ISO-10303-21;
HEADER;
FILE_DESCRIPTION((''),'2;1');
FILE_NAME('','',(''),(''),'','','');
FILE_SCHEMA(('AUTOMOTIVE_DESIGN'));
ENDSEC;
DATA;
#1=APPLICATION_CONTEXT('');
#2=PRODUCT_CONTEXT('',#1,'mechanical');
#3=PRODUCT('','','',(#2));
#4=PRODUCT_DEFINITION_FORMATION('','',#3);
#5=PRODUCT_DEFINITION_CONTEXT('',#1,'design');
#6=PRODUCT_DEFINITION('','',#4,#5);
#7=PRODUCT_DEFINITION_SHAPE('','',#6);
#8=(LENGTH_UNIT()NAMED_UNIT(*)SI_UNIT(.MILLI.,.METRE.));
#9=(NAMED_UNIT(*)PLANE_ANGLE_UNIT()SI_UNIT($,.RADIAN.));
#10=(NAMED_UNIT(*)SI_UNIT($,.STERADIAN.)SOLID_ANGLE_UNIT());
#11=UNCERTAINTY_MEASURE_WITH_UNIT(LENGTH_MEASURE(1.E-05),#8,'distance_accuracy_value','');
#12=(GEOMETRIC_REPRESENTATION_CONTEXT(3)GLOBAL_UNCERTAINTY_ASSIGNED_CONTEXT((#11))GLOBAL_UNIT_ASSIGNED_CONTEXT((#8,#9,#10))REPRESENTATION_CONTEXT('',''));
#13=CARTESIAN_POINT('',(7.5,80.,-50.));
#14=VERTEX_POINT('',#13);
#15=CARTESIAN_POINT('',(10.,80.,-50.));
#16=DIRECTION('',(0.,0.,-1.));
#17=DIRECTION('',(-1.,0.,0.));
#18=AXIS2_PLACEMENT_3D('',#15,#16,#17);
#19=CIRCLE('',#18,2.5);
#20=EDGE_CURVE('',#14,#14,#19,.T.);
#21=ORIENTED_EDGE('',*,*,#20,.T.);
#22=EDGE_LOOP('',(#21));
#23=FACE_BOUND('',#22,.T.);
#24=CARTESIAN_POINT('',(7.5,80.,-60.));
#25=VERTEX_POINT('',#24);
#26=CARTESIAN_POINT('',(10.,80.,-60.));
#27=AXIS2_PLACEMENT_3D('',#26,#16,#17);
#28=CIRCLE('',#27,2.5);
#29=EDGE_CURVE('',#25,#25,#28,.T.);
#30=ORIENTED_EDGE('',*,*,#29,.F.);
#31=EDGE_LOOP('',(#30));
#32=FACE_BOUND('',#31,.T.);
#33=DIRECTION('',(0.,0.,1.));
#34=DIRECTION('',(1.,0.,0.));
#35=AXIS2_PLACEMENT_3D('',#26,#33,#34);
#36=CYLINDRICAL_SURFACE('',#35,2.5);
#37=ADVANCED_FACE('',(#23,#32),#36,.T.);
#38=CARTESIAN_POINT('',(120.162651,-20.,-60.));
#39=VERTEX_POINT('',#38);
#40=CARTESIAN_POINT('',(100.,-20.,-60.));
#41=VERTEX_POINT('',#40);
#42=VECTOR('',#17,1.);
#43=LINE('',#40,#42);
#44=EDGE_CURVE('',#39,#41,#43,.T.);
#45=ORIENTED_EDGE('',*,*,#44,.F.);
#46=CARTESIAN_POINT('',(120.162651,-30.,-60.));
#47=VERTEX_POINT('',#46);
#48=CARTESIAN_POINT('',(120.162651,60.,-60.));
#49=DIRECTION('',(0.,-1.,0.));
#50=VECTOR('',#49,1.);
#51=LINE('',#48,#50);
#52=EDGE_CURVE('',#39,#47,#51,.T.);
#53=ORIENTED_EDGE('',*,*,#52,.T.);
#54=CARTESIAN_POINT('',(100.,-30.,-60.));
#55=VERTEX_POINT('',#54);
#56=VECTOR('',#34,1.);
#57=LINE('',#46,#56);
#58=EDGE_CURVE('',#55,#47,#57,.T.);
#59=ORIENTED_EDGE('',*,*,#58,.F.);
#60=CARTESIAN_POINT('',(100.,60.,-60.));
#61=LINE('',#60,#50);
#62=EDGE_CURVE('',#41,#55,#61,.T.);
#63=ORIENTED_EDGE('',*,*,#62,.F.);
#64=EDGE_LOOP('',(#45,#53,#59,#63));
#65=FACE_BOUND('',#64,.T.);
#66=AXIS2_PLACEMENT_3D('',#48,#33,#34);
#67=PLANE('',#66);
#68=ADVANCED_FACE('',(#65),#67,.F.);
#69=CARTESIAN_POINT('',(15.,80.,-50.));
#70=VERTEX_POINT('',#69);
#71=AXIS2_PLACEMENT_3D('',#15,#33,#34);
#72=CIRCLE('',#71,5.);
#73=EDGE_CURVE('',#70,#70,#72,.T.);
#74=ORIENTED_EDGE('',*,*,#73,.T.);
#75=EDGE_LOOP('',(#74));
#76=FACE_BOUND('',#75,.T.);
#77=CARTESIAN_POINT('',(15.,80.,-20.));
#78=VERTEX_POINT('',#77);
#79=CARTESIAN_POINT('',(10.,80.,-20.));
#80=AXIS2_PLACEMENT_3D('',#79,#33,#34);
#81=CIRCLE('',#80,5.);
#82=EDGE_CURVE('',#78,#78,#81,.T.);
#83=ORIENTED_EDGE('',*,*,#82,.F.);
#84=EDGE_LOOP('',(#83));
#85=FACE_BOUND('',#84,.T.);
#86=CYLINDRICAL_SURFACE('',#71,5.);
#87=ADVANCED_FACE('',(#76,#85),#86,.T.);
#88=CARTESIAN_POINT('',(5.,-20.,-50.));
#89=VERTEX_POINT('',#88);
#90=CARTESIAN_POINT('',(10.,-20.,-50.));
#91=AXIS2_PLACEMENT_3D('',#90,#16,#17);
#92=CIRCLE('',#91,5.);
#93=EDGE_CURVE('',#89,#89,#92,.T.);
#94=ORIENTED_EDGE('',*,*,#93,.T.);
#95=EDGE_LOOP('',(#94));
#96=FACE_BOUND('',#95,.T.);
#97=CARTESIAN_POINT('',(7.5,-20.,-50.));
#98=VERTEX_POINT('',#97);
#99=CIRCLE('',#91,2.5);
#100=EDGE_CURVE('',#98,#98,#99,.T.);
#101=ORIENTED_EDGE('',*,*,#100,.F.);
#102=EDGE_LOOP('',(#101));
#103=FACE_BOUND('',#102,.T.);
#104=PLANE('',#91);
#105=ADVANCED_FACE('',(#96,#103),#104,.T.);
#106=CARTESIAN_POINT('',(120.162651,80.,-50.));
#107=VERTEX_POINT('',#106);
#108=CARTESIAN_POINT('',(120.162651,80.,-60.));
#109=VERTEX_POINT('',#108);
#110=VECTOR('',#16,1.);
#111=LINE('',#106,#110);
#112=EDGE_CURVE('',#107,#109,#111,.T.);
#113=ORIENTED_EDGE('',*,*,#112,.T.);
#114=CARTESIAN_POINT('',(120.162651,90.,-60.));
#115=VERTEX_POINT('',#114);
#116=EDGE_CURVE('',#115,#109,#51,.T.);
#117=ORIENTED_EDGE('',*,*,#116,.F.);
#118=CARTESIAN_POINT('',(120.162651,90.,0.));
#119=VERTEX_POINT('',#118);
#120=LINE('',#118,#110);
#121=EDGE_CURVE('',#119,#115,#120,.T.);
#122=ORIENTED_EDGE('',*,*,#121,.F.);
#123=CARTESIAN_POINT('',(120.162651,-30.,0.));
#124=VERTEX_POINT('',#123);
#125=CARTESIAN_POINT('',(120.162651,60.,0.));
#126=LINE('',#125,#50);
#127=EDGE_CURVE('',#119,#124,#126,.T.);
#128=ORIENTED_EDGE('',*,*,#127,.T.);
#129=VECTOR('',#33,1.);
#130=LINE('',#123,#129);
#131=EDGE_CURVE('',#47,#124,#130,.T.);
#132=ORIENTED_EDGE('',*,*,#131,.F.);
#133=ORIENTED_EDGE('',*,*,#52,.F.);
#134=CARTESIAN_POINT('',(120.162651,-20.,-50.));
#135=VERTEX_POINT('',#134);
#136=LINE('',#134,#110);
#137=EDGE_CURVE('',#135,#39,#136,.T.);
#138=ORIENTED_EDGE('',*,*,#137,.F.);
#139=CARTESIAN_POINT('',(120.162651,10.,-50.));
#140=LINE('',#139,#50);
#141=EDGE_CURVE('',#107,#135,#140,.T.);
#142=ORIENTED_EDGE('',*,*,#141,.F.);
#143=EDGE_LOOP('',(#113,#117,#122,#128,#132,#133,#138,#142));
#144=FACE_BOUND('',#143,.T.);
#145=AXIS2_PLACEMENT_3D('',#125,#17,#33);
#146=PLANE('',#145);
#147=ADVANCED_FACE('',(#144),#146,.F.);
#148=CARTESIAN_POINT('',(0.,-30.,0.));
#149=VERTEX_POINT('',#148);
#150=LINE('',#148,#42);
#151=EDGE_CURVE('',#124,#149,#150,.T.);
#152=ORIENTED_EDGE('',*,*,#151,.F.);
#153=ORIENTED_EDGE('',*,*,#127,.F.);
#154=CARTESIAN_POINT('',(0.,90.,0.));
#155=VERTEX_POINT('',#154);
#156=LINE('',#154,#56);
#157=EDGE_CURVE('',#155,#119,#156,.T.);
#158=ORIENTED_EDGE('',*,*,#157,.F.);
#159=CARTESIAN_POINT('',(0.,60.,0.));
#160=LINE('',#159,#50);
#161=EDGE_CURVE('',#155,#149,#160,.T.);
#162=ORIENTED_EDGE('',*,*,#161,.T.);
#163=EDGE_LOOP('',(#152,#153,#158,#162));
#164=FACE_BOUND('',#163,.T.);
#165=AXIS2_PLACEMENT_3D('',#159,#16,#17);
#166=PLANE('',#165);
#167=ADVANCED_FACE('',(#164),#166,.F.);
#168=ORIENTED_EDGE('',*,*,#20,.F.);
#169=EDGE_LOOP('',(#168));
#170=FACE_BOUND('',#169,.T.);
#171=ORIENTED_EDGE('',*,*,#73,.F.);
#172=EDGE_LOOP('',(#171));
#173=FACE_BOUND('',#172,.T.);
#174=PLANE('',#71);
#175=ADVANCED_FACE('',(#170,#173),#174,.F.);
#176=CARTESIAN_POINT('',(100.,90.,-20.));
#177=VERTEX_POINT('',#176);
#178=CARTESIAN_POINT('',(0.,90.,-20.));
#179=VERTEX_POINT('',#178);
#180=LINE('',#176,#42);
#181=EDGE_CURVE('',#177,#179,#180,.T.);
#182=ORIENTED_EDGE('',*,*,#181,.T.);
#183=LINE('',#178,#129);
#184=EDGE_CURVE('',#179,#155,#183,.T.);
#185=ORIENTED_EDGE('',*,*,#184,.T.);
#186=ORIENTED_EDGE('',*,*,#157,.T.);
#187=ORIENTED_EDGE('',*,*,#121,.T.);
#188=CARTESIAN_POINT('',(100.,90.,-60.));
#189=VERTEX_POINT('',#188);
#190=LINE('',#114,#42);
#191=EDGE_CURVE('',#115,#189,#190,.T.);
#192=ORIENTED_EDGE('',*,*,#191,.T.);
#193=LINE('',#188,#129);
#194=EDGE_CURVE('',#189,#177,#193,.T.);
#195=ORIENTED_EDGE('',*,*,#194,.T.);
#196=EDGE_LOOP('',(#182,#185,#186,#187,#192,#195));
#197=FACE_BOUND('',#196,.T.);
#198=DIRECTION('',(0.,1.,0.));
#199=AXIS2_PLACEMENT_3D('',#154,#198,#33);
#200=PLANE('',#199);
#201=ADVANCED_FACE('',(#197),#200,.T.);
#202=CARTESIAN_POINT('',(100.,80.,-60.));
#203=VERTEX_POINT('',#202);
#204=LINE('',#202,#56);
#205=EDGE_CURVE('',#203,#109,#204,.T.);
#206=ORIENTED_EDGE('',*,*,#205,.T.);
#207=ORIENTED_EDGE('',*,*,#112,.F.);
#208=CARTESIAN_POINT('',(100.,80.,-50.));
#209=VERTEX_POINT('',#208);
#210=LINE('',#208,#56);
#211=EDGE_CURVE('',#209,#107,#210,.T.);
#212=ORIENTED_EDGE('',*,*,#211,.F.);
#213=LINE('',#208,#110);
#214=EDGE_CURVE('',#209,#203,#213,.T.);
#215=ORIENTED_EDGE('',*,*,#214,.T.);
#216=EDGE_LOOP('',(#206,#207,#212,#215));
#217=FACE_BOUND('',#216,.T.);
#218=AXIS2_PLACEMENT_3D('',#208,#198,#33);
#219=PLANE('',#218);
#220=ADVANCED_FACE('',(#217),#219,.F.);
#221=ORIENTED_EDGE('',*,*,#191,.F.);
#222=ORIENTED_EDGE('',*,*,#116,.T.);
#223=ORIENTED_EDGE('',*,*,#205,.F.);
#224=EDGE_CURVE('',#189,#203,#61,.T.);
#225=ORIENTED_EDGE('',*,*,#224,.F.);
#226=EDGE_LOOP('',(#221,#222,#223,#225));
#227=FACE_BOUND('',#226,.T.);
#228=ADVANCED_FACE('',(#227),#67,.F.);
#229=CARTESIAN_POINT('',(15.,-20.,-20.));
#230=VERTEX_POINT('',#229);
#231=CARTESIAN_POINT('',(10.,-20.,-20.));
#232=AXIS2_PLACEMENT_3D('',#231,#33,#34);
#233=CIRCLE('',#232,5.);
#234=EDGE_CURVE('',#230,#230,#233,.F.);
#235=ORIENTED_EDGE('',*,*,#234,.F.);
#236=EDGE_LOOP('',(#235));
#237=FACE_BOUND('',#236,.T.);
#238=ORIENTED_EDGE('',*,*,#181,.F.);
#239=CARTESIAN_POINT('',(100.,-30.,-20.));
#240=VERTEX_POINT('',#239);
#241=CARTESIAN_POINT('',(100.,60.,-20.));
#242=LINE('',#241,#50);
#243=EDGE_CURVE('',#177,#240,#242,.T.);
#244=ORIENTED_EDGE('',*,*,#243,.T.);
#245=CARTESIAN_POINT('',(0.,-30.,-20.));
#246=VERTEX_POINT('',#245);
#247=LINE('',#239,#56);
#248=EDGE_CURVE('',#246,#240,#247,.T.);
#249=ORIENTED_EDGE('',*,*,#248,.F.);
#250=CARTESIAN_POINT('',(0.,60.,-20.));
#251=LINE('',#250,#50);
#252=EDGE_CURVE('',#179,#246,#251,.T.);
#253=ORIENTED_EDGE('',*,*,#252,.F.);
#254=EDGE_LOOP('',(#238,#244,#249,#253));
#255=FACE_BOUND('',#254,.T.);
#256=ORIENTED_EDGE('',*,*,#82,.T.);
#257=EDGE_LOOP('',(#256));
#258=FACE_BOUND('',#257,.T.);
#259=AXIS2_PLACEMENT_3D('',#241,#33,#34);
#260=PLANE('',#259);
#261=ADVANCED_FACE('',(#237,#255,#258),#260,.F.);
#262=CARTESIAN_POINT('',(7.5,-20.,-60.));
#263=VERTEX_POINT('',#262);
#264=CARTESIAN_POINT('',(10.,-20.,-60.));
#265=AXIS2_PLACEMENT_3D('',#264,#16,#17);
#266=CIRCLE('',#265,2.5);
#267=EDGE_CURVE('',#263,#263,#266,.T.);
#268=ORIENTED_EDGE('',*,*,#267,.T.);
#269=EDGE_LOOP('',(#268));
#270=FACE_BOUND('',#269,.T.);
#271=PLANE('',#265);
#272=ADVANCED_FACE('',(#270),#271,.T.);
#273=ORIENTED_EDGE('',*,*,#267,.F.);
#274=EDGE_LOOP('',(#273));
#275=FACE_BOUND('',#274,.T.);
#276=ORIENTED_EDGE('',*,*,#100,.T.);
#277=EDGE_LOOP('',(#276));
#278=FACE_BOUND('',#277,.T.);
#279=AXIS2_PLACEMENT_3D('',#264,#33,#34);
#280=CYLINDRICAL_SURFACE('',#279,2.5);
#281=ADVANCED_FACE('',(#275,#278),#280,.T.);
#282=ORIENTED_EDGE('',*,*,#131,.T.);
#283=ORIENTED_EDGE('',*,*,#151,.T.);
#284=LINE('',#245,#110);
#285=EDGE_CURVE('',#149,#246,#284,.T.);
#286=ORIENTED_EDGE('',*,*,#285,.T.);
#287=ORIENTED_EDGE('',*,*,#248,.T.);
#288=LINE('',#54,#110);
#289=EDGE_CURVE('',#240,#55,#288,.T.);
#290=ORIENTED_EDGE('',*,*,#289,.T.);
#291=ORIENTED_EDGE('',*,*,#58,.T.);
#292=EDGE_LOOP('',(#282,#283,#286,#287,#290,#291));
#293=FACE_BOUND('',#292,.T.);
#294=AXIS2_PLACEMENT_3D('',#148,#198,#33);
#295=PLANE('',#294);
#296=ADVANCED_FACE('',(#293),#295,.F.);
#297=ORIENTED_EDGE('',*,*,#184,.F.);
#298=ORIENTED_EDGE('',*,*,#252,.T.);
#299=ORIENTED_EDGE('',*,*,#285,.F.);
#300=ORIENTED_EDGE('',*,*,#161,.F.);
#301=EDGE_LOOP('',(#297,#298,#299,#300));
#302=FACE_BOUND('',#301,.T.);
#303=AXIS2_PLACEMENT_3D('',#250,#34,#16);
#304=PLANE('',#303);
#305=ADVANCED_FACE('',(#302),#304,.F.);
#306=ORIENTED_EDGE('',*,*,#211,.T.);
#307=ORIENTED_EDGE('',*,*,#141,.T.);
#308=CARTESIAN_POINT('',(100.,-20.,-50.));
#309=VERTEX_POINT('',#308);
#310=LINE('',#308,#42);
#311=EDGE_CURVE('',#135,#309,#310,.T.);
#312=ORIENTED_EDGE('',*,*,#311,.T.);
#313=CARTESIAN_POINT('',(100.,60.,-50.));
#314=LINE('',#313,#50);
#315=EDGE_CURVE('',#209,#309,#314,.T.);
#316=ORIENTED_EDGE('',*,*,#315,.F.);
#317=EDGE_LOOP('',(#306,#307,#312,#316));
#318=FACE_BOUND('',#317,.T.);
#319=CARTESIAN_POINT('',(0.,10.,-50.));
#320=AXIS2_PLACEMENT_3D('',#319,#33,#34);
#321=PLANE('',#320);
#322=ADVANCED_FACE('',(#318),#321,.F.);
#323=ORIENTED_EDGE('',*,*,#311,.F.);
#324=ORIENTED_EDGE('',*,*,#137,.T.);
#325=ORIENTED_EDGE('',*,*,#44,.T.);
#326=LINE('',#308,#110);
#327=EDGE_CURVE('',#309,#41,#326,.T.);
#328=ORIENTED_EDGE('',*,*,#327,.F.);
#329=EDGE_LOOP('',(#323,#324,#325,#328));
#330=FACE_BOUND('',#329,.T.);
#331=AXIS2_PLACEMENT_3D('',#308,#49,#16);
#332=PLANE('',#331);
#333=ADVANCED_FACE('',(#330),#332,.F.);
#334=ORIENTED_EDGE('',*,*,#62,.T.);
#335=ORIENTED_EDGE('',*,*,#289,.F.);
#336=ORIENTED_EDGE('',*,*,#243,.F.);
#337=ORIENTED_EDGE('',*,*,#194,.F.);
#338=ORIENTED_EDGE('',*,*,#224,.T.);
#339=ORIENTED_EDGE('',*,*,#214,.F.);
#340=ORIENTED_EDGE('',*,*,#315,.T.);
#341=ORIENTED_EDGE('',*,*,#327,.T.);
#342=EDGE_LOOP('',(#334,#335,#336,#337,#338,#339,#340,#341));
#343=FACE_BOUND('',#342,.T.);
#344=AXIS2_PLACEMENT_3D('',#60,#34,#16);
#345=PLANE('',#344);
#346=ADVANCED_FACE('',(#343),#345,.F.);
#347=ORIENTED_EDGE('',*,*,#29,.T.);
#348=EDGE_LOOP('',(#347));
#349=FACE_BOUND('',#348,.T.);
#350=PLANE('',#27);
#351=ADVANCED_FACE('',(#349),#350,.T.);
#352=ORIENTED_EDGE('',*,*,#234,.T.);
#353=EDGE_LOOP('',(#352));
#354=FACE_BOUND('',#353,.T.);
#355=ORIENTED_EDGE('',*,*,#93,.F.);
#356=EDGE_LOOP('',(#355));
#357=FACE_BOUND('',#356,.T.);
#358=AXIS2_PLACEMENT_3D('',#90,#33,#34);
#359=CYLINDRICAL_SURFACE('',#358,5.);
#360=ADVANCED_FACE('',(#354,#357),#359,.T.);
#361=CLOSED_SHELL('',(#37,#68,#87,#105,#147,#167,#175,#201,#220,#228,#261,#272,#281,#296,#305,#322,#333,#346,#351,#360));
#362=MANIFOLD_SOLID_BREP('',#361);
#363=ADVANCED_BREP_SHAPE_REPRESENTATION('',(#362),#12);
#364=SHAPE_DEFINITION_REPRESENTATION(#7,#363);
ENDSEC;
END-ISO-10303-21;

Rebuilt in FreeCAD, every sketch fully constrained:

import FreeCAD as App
import Part
import Sketcher
from FreeCAD import Vector

doc = App.newDocument("Part")
body = doc.addObject("PartDesign::Body", "Body")

# Sketch on XZ plane
sketch1 = body.newObject("Sketcher::SketchObject", "Sketch")
sketch1.AttachmentSupport = (doc.getObject("XZ_Plane"), [""])
sketch1.MapMode = "FlatFace"
sketch1.addGeometry([
    Part.LineSegment(Vector(0, 0, 0), Vector(120, 0, 0)),  # 0
    Part.LineSegment(Vector(120, 0, 0), Vector(120, -60, 0)),  # 1
    Part.LineSegment(Vector(120, -60, 0), Vector(100, -60, 0)),  # 2
    Part.LineSegment(Vector(100, -60, 0), Vector(100, -20, 0)),  # 3
    Part.LineSegment(Vector(100, -20, 0), Vector(0, -20, 0)),  # 4
    Part.LineSegment(Vector(0, -20, 0), Vector(0, 0, 0)),  # 5
], False)
sketch1.addConstraint([
    Sketcher.Constraint("Coincident", 0, 2, 1, 1),
    Sketcher.Constraint("Coincident", 1, 2, 2, 1),
    Sketcher.Constraint("Coincident", 2, 2, 3, 1),
    Sketcher.Constraint("Coincident", 3, 2, 4, 1),
    Sketcher.Constraint("Coincident", 4, 2, 5, 1),
    Sketcher.Constraint("Coincident", 5, 2, 0, 1),
    Sketcher.Constraint("Horizontal", 0),
    Sketcher.Constraint("Vertical", 1),
    Sketcher.Constraint("Horizontal", 2),
    Sketcher.Constraint("Vertical", 3),
    Sketcher.Constraint("Horizontal", 4),
    Sketcher.Constraint("Vertical", 5),
    Sketcher.Constraint("Coincident", 5, 2, -1, 1),
    Sketcher.Constraint("DistanceX", 4, 2, 4, 1, 100.0),
    Sketcher.Constraint("DistanceY", 1, 2, 1, 1, 60.0),
    Sketcher.Constraint("DistanceY", 3, 1, 3, 2, 40.0),
    Sketcher.Constraint("DistanceX", 0, 1, 0, 2, 120.162651),
])
pad1 = body.newObject("PartDesign::Pad", "Pad")
pad1.Profile = sketch1
pad1.Length = 60
pad1.Reversed = True

# Sketch on YZ plane
sketch2 = body.newObject("Sketcher::SketchObject", "Sketch001")
sketch2.AttachmentSupport = (doc.getObject("YZ_Plane"), [""])
sketch2.MapMode = "FlatFace"
sketch2.AttachmentOffset = App.Placement(Vector(0, 0, 120.162651), App.Rotation())
sketch2.addGeometry([
    Part.LineSegment(Vector(50, -50, 0), Vector(10, -50, 0)),
    Part.LineSegment(Vector(10, -50, 0), Vector(10, -60, 0)),
    Part.LineSegment(Vector(10, -60, 0), Vector(50, -60, 0)),
    Part.LineSegment(Vector(50, -60, 0), Vector(50, -50, 0)),
], False)
sketch2.addConstraint([
    Sketcher.Constraint("Coincident", 0, 2, 1, 1),
    Sketcher.Constraint("Coincident", 1, 2, 2, 1),
    Sketcher.Constraint("Coincident", 2, 2, 3, 1),
    Sketcher.Constraint("Coincident", 3, 2, 0, 1),
    Sketcher.Constraint("Horizontal", 0),
    Sketcher.Constraint("Vertical", 1),
    Sketcher.Constraint("Horizontal", 2),
    Sketcher.Constraint("Vertical", 3),
    Sketcher.Constraint("DistanceX", 0, 2, 0, 1, 40.0),
    Sketcher.Constraint("DistanceY", 1, 2, 1, 1, 10.0),
    Sketcher.Constraint("DistanceX", -1, 1, 0, 2, 10.0),
    Sketcher.Constraint("DistanceY", 0, 2, -1, 1, 50.0),
])
pocket1 = body.newObject("PartDesign::Pocket", "Pocket")
pocket1.Profile = sketch2
pocket1.Type = "ThroughAll"

# Sketch on XZ plane
sketch3 = body.newObject("Sketcher::SketchObject", "Sketch002")
sketch3.AttachmentSupport = (doc.getObject("XZ_Plane"), [""])
sketch3.MapMode = "FlatFace"
sketch3.AttachmentOffset = App.Placement(Vector(0, 0, -60), App.Rotation())
sketch3.addGeometry([
    Part.LineSegment(Vector(0, -20, 0), Vector(0, 0, 0)),  # 0
    Part.LineSegment(Vector(0, 0, 0), Vector(120, 0, 0)),  # 1
    Part.LineSegment(Vector(120, 0, 0), Vector(120, -60, 0)),  # 2
    Part.LineSegment(Vector(120, -60, 0), Vector(100, -60, 0)),  # 3
    Part.LineSegment(Vector(100, -60, 0), Vector(100, -20, 0)),  # 4
    Part.LineSegment(Vector(100, -20, 0), Vector(0, -20, 0)),  # 5
], False)
sketch3.addConstraint([
    Sketcher.Constraint("Coincident", 0, 2, 1, 1),
    Sketcher.Constraint("Coincident", 1, 2, 2, 1),
    Sketcher.Constraint("Coincident", 2, 2, 3, 1),
    Sketcher.Constraint("Coincident", 3, 2, 4, 1),
    Sketcher.Constraint("Coincident", 4, 2, 5, 1),
    Sketcher.Constraint("Coincident", 5, 2, 0, 1),
    Sketcher.Constraint("Vertical", 0),
    Sketcher.Constraint("Horizontal", 1),
    Sketcher.Constraint("Vertical", 2),
    Sketcher.Constraint("Horizontal", 3),
    Sketcher.Constraint("Vertical", 4),
    Sketcher.Constraint("Horizontal", 5),
    Sketcher.Constraint("Coincident", 0, 2, -1, 1),
    Sketcher.Constraint("DistanceX", 5, 2, 5, 1, 100.0),
    Sketcher.Constraint("DistanceY", 0, 1, 0, 2, 20.0),
    Sketcher.Constraint("DistanceY", 2, 2, 2, 1, 60.0),
    Sketcher.Constraint("DistanceX", 1, 1, 1, 2, 120.162651),
])
pad2 = body.newObject("PartDesign::Pad", "Pad001")
pad2.Profile = sketch3
pad2.Length = 30
pad2.Reversed = True

# Sketch on XZ plane
sketch4 = body.newObject("Sketcher::SketchObject", "Sketch003")
sketch4.AttachmentSupport = (doc.getObject("XZ_Plane"), [""])
sketch4.MapMode = "FlatFace"
sketch4.addGeometry([
    Part.LineSegment(Vector(0, 0, 0), Vector(0, -20, 0)),  # 0
    Part.LineSegment(Vector(0, -20, 0), Vector(100, -20, 0)),  # 1
    Part.LineSegment(Vector(100, -20, 0), Vector(100, -60, 0)),  # 2
    Part.LineSegment(Vector(100, -60, 0), Vector(120, -60, 0)),  # 3
    Part.LineSegment(Vector(120, -60, 0), Vector(120, 0, 0)),  # 4
    Part.LineSegment(Vector(120, 0, 0), Vector(0, 0, 0)),  # 5
], False)
sketch4.addConstraint([
    Sketcher.Constraint("Coincident", 0, 2, 1, 1),
    Sketcher.Constraint("Coincident", 1, 2, 2, 1),
    Sketcher.Constraint("Coincident", 2, 2, 3, 1),
    Sketcher.Constraint("Coincident", 3, 2, 4, 1),
    Sketcher.Constraint("Coincident", 4, 2, 5, 1),
    Sketcher.Constraint("Coincident", 5, 2, 0, 1),
    Sketcher.Constraint("Vertical", 0),
    Sketcher.Constraint("Horizontal", 1),
    Sketcher.Constraint("Vertical", 2),
    Sketcher.Constraint("Horizontal", 3),
    Sketcher.Constraint("Vertical", 4),
    Sketcher.Constraint("Horizontal", 5),
    Sketcher.Constraint("Coincident", 5, 2, -1, 1),
    Sketcher.Constraint("DistanceX", 1, 1, 1, 2, 100.0),
    Sketcher.Constraint("DistanceY", 0, 2, 0, 1, 20.0),
    Sketcher.Constraint("DistanceY", 2, 2, 2, 1, 40.0),
    Sketcher.Constraint("DistanceX", 3, 1, 3, 2, 20.162651),
])
pad3 = body.newObject("PartDesign::Pad", "Pad002")
pad3.Profile = sketch4
pad3.Length = 30

# Sketch on XY plane
sketch5 = body.newObject("Sketcher::SketchObject", "Sketch004")
sketch5.AttachmentSupport = (doc.getObject("XY_Plane"), [""])
sketch5.MapMode = "FlatFace"
sketch5.AttachmentOffset = App.Placement(Vector(0, 0, -20), App.Rotation())
sketch5.addGeometry([
    Part.Circle(Vector(10, -20, 0), Vector(0, 0, 1), 5),
    Part.Circle(Vector(10, 80, 0), Vector(0, 0, 1), 5),
], False)
sketch5.addConstraint([
    Sketcher.Constraint("Equal", 0, 1),
    Sketcher.Constraint("Vertical", 0, 3, 1, 3),
    Sketcher.Constraint("Diameter", 0, 10.0),
    Sketcher.Constraint("DistanceX", -1, 1, 0, 3, 10.0),
    Sketcher.Constraint("DistanceY", 0, 3, -1, 1, 20.0),
    Sketcher.Constraint("DistanceY", -1, 1, 1, 3, 80.0),
])
pad4 = body.newObject("PartDesign::Pad", "Pad003")
pad4.Profile = sketch5
pad4.Length = 30
pad4.Reversed = True

# Sketch on XY plane
sketch6 = body.newObject("Sketcher::SketchObject", "Sketch005")
sketch6.AttachmentSupport = (doc.getObject("XY_Plane"), [""])
sketch6.MapMode = "FlatFace"
sketch6.AttachmentOffset = App.Placement(Vector(0, 0, -50), App.Rotation())
sketch6.addGeometry([
    Part.Circle(Vector(10, -20, 0), Vector(0, 0, 1), 2.5),
    Part.Circle(Vector(10, 80, 0), Vector(0, 0, 1), 2.5),
], False)
sketch6.addConstraint([
    Sketcher.Constraint("Equal", 0, 1),
    Sketcher.Constraint("Vertical", 0, 3, 1, 3),
    Sketcher.Constraint("Diameter", 0, 5.0),
    Sketcher.Constraint("DistanceX", -1, 1, 0, 3, 10.0),
    Sketcher.Constraint("DistanceY", 0, 3, -1, 1, 20.0),
    Sketcher.Constraint("DistanceY", -1, 1, 1, 3, 80.0),
])
pad5 = body.newObject("PartDesign::Pad", "Pad004")
pad5.Profile = sketch6
pad5.Length = 10
pad5.Reversed = True

# Sketch on XY plane
sketch7 = body.newObject("Sketcher::SketchObject", "Sketch006")
sketch7.AttachmentSupport = (doc.getObject("XY_Plane"), [""])
sketch7.MapMode = "FlatFace"
sketch7.AttachmentOffset = App.Placement(Vector(0, 0, -60), App.Rotation())
sketch7.addGeometry([
    Part.LineSegment(Vector(120, 10, 0), Vector(120, -20, 0)),  # 0
    Part.LineSegment(Vector(120, -20, 0), Vector(100, -20, 0)),  # 1
    Part.LineSegment(Vector(100, -20, 0), Vector(100, 10, 0)),  # 2
    Part.LineSegment(Vector(100, 10, 0), Vector(120, 10, 0)),  # 3
    Part.LineSegment(Vector(120, 80, 0), Vector(120, 50, 0)),  # 4
    Part.LineSegment(Vector(120, 50, 0), Vector(100, 50, 0)),  # 5
    Part.LineSegment(Vector(100, 50, 0), Vector(100, 80, 0)),  # 6
    Part.LineSegment(Vector(100, 80, 0), Vector(120, 80, 0)),  # 7
], False)
sketch7.addConstraint([
    Sketcher.Constraint("Coincident", 0, 2, 1, 1),
    Sketcher.Constraint("Coincident", 1, 2, 2, 1),
    Sketcher.Constraint("Coincident", 2, 2, 3, 1),
    Sketcher.Constraint("Coincident", 3, 2, 0, 1),
    Sketcher.Constraint("Coincident", 4, 2, 5, 1),
    Sketcher.Constraint("Coincident", 5, 2, 6, 1),
    Sketcher.Constraint("Coincident", 6, 2, 7, 1),
    Sketcher.Constraint("Coincident", 7, 2, 4, 1),
    Sketcher.Constraint("Vertical", 0),
    Sketcher.Constraint("Horizontal", 1),
    Sketcher.Constraint("Vertical", 2),
    Sketcher.Constraint("Horizontal", 3),
    Sketcher.Constraint("Vertical", 4),
    Sketcher.Constraint("Horizontal", 5),
    Sketcher.Constraint("Vertical", 6),
    Sketcher.Constraint("Horizontal", 7),
    Sketcher.Constraint("Vertical", 3, 2, 4, 2),
    Sketcher.Constraint("Vertical", 2, 2, 5, 2),
    Sketcher.Constraint("Equal", 2, 4),
    Sketcher.Constraint("DistanceY", 0, 2, 0, 1, 30.0),
    Sketcher.Constraint("DistanceY", 0, 2, -1, 1, 20.0),
    Sketcher.Constraint("DistanceX", -1, 1, 1, 2, 100.0),
    Sketcher.Constraint("DistanceY", -1, 1, 4, 2, 50.0),
    Sketcher.Constraint("DistanceX", 1, 2, 1, 1, 20.162651),
])
pocket2 = body.newObject("PartDesign::Pocket", "Pocket001")
pocket2.Profile = sketch7
pocket2.Length = 10
pocket2.Reversed = True

doc.recompute()
